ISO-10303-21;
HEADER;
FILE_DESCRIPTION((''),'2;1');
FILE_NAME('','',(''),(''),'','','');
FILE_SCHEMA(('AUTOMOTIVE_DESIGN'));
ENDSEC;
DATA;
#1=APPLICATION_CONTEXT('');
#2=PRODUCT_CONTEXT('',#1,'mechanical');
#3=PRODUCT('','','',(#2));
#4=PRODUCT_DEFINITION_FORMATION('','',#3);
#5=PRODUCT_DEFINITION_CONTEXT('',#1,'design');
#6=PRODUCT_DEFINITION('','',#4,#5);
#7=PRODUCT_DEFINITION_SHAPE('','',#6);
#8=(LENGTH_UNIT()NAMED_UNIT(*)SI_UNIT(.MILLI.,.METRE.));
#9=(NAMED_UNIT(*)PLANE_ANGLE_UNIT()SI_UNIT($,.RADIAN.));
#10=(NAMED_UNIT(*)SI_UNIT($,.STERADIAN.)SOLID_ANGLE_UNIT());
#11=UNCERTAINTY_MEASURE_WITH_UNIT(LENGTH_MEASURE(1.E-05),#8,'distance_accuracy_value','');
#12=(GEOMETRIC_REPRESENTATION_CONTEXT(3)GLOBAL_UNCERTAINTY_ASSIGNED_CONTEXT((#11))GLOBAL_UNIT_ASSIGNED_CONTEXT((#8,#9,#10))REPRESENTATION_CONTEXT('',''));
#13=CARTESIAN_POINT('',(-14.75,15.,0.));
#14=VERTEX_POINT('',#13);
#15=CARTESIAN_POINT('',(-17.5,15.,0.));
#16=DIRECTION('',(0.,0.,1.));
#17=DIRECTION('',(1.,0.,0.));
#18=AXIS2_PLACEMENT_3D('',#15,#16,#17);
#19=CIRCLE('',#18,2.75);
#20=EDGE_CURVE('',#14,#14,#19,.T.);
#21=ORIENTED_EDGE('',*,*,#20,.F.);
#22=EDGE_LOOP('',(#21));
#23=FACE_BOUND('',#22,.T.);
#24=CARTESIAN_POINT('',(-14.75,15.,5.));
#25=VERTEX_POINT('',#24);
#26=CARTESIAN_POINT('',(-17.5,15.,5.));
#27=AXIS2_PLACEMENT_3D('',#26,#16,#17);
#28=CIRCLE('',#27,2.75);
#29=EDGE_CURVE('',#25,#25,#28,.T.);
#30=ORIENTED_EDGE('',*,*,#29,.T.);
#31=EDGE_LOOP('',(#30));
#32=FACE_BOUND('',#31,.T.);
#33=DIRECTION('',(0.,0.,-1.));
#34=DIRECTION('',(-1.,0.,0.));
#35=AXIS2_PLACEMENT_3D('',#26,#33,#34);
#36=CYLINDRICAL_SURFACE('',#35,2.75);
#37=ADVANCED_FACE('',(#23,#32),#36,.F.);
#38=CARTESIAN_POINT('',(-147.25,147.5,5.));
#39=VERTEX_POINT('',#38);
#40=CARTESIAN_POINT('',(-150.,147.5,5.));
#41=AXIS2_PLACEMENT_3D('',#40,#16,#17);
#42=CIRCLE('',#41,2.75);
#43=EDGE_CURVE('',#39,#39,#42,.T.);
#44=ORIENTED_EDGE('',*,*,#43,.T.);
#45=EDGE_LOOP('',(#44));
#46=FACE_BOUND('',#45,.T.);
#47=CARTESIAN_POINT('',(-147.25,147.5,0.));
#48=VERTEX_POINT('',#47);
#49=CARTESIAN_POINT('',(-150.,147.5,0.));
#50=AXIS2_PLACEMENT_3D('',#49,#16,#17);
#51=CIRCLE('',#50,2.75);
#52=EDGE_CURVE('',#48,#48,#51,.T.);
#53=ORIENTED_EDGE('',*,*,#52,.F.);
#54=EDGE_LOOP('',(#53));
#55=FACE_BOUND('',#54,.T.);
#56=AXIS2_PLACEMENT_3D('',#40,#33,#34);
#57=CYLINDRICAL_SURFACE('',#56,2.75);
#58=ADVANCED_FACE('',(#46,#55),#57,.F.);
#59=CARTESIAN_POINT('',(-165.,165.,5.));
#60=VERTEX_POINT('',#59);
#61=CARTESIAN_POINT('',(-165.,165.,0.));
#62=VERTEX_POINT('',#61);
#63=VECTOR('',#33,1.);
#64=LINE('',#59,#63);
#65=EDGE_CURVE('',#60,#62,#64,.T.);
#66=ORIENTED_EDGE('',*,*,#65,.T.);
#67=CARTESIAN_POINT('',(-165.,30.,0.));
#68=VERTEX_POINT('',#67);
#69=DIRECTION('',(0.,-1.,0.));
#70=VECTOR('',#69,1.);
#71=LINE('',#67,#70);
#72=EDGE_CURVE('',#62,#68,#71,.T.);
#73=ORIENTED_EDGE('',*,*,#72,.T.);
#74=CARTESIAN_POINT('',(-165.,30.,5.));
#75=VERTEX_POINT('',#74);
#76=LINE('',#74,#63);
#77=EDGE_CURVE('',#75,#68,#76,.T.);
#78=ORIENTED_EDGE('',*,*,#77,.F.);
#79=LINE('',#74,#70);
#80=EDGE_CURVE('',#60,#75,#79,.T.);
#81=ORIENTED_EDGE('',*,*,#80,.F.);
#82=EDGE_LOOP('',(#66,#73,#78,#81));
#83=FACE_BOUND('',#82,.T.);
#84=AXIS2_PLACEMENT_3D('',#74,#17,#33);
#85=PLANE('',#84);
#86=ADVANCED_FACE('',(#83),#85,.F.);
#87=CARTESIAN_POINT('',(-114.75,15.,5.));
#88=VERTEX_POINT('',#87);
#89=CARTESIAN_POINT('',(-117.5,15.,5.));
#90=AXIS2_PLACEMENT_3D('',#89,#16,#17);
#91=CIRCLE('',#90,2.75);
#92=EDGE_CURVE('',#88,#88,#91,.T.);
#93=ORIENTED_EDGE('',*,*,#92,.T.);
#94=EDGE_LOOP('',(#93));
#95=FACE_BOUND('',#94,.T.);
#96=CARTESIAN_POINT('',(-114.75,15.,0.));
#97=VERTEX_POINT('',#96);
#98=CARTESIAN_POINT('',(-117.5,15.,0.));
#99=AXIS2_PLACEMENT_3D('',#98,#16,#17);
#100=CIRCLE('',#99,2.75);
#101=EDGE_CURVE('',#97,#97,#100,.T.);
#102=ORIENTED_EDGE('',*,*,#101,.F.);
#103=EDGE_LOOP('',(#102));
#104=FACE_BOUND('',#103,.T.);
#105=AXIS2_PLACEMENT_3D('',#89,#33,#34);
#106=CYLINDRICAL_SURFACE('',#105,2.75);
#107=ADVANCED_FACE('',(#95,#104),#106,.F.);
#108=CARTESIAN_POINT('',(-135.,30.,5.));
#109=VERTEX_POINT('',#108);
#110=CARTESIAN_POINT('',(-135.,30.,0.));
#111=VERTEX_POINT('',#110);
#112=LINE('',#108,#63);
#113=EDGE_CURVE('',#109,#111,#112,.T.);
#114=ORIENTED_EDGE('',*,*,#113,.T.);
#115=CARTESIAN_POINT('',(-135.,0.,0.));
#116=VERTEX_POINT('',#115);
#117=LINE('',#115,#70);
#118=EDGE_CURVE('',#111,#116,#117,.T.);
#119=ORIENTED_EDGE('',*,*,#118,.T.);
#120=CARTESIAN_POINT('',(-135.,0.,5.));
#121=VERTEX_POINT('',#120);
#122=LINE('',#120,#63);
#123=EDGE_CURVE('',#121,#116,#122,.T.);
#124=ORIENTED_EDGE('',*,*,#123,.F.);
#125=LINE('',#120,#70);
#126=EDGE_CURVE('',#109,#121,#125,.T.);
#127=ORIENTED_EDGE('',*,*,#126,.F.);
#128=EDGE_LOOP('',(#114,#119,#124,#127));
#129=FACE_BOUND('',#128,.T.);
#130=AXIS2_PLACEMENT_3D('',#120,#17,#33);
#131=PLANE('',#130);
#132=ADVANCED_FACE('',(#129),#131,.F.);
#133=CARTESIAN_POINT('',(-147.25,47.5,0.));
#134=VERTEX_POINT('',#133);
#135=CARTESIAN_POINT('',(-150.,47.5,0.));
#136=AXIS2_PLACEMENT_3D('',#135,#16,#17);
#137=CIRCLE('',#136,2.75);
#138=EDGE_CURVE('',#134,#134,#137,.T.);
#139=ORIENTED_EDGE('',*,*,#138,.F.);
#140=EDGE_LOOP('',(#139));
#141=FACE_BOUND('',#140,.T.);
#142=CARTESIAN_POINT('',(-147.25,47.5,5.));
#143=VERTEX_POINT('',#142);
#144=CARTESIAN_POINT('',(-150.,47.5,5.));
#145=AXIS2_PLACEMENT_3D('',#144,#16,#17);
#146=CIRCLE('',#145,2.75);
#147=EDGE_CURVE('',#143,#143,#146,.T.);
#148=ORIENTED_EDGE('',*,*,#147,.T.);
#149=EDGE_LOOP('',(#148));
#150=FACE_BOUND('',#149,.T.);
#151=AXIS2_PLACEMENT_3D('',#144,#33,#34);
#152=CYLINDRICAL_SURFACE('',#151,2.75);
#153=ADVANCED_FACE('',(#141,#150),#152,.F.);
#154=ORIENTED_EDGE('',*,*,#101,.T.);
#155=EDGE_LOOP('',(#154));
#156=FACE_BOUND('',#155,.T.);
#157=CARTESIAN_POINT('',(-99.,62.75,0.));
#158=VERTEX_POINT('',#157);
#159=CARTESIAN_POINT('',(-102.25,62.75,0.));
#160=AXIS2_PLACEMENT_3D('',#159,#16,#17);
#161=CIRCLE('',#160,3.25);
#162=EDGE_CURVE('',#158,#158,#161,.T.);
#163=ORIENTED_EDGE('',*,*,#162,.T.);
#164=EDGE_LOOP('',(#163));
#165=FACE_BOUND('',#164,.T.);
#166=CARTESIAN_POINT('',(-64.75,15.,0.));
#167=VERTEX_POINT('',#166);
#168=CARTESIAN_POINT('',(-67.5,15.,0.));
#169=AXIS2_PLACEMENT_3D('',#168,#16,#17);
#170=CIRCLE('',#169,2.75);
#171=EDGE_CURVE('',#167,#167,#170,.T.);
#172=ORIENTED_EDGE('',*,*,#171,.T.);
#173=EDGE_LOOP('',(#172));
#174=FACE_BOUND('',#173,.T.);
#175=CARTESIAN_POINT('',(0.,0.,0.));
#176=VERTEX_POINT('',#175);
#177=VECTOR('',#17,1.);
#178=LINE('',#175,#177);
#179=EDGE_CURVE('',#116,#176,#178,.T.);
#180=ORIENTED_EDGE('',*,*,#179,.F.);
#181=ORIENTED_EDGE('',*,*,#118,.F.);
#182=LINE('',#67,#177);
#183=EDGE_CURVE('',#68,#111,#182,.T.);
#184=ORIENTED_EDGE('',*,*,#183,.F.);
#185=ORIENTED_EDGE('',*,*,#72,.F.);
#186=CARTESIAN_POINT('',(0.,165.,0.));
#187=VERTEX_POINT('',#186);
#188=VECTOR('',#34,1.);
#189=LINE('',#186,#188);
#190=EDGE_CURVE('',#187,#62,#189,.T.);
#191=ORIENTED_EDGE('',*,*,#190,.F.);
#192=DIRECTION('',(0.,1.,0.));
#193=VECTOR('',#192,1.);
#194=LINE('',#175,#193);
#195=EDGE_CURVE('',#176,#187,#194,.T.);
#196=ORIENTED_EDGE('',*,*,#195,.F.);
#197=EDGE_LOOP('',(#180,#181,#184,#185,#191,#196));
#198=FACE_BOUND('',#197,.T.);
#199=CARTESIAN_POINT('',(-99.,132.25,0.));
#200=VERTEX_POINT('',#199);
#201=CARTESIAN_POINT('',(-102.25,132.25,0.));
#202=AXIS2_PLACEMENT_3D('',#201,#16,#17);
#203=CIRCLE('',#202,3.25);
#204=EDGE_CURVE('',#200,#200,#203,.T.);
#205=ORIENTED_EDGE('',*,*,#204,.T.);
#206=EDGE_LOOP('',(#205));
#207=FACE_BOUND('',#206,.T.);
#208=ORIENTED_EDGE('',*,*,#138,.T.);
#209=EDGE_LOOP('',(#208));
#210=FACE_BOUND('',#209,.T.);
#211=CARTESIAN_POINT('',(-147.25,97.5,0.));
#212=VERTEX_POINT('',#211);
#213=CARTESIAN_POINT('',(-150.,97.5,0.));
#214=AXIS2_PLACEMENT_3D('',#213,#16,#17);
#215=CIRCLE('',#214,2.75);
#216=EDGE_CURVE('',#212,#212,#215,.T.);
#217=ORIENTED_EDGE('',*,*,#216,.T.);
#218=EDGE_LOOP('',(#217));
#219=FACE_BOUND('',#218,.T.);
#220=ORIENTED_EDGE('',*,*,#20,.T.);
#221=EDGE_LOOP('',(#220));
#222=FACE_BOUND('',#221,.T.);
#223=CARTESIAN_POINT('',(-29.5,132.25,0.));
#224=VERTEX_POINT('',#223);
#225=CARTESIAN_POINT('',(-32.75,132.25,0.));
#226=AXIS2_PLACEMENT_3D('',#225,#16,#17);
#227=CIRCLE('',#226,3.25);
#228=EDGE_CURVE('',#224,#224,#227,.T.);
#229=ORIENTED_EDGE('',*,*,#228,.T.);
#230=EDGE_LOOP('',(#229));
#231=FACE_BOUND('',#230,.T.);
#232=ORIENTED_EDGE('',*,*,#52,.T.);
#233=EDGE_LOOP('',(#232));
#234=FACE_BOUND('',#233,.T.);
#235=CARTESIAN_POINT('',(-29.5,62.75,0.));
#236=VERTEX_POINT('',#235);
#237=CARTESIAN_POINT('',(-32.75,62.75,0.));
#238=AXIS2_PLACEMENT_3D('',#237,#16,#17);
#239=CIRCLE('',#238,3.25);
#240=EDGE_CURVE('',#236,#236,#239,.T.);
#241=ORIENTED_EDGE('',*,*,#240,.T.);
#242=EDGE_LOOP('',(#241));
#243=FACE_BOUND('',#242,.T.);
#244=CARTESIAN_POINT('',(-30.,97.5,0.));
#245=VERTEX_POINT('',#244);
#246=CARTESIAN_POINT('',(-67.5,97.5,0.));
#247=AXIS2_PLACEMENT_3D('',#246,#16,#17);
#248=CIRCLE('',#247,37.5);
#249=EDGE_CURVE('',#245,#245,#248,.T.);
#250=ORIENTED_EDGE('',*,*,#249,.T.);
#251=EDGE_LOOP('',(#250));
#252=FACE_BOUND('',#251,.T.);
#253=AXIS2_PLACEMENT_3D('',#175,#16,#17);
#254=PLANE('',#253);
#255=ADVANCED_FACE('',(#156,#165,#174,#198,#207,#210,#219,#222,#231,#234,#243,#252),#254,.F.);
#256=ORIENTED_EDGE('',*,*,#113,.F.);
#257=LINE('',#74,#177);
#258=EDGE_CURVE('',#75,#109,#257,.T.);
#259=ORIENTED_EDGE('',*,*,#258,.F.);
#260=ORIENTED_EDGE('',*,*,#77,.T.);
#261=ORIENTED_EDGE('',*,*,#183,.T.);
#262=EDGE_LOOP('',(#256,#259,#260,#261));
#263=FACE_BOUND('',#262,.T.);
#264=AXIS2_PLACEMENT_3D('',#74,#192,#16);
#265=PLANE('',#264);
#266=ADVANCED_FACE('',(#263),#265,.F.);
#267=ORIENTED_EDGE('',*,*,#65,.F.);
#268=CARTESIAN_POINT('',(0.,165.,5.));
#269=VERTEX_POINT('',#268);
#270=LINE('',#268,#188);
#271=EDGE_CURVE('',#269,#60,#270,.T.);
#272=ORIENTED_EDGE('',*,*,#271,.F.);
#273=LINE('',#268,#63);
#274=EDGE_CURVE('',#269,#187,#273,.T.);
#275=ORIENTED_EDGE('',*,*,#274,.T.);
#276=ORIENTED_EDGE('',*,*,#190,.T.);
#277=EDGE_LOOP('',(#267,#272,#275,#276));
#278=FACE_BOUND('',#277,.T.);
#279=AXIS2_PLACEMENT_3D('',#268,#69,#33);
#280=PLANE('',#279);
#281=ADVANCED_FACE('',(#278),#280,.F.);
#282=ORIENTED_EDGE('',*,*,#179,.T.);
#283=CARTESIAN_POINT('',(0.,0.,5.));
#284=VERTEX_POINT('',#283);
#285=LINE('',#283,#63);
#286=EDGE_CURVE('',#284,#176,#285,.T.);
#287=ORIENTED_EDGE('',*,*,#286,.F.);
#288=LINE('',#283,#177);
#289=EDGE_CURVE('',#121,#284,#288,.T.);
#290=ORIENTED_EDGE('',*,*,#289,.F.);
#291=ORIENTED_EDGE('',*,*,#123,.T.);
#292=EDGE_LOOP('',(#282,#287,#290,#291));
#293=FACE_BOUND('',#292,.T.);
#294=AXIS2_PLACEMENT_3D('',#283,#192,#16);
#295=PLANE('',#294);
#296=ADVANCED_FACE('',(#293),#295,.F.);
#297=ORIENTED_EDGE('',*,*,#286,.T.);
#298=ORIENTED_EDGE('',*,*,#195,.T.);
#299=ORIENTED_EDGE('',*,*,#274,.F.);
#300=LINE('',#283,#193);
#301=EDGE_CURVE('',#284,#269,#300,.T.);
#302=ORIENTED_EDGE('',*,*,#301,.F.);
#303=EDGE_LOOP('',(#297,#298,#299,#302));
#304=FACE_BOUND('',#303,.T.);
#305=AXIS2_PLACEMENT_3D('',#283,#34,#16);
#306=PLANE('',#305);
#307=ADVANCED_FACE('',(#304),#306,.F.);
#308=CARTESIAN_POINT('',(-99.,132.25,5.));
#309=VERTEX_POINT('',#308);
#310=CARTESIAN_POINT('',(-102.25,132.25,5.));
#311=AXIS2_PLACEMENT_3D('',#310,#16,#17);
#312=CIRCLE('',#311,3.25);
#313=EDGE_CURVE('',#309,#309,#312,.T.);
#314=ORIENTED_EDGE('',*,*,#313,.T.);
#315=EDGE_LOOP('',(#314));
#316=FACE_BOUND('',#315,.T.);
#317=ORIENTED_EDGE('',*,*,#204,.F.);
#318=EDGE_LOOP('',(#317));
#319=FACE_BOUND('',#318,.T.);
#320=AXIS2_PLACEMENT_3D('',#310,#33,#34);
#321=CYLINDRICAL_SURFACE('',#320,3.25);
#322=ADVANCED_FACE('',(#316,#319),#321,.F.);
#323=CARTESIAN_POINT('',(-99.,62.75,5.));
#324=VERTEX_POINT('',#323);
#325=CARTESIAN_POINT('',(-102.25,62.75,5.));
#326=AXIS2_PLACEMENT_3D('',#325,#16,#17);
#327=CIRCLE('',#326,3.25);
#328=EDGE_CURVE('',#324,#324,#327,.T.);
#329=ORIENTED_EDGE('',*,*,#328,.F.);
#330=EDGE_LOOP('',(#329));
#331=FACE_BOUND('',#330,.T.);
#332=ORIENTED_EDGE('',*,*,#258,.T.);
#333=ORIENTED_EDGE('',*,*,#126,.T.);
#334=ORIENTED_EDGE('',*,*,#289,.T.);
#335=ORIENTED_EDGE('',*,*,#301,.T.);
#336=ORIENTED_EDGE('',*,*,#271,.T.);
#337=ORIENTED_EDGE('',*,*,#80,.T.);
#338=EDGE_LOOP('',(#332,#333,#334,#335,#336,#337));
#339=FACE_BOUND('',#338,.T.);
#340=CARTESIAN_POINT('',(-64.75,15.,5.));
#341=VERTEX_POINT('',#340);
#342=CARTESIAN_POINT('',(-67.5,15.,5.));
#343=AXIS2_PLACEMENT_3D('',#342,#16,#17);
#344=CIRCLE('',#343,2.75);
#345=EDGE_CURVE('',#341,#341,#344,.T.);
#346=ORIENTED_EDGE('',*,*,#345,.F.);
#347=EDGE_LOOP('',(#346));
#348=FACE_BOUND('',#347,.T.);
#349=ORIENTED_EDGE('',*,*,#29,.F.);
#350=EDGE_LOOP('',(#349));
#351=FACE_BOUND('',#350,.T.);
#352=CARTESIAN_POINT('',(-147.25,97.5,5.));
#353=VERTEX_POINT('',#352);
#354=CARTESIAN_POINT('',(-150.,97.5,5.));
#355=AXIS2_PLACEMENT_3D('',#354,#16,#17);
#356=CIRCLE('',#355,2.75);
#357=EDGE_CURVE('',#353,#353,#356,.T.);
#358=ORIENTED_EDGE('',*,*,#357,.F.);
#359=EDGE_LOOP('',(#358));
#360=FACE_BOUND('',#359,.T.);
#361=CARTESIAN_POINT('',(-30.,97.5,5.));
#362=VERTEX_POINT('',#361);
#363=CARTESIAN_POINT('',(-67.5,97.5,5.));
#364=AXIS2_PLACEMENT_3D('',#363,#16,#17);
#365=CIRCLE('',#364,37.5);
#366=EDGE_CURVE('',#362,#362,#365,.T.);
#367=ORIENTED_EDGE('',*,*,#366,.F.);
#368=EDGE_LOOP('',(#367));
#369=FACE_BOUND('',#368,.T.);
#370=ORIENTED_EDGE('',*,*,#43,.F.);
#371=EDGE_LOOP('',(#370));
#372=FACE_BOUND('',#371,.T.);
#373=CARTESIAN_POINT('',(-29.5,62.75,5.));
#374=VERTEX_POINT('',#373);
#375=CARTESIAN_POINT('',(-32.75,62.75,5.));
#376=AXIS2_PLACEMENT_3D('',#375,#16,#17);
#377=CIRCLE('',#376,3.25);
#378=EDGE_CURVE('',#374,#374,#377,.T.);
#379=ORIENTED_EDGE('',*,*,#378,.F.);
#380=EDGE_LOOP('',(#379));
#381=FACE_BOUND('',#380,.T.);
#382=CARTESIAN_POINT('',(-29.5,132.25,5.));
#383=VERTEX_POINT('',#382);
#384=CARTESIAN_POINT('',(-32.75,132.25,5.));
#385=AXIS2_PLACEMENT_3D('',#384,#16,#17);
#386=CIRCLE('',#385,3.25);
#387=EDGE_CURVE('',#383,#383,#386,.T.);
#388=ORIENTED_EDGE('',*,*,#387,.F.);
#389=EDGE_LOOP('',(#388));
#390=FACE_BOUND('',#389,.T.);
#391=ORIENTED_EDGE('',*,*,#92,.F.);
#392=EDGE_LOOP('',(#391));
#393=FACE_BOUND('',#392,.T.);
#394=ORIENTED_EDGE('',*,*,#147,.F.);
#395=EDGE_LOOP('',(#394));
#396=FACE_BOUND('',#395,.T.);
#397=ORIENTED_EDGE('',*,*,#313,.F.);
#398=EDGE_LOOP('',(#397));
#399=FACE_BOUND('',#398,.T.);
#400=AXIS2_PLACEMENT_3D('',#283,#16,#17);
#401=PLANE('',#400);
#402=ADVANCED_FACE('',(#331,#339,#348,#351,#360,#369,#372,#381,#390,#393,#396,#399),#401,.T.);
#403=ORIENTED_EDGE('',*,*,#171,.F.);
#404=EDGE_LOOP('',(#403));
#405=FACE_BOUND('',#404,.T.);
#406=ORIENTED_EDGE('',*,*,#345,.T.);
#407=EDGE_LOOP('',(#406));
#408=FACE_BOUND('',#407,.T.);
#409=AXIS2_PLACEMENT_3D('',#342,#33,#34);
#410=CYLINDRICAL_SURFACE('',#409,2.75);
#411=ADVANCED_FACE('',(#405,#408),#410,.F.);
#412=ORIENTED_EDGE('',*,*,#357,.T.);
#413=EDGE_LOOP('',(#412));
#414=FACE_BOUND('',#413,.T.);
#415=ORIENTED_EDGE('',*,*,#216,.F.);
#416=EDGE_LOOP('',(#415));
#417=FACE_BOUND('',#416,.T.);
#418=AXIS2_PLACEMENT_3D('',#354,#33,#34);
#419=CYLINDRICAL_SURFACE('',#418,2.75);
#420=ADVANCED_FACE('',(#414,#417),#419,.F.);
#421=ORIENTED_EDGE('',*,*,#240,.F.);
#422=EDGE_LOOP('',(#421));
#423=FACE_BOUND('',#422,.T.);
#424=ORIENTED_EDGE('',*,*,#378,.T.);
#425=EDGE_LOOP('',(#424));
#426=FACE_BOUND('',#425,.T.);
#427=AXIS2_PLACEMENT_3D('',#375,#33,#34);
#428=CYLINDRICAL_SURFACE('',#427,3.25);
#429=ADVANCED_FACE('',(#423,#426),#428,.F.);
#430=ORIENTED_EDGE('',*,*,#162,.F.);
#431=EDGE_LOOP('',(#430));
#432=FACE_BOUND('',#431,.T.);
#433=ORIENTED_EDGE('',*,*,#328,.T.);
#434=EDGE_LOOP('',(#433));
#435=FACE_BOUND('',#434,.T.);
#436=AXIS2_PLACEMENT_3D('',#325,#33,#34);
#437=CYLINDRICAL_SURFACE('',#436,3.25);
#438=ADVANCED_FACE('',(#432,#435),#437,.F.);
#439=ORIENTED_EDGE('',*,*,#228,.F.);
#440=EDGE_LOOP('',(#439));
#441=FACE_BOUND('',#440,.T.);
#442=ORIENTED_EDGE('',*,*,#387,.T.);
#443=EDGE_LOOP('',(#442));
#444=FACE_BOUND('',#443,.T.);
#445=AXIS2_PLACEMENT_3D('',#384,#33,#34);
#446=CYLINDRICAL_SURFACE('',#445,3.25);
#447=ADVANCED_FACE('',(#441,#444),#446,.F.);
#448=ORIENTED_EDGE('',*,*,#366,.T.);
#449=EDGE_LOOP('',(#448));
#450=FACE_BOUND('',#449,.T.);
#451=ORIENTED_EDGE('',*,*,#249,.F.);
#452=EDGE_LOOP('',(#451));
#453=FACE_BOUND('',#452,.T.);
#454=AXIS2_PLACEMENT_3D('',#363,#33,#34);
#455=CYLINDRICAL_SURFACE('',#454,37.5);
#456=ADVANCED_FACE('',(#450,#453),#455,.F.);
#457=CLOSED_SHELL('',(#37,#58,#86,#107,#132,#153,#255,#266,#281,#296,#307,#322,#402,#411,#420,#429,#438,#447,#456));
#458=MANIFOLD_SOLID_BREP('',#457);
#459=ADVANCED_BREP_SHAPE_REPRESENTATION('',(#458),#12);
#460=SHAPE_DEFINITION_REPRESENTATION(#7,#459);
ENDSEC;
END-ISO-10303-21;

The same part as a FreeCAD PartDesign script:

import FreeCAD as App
import Part
import Sketcher


def add_polygon(sketch, points):
    """Adds a closed chain of lines whose ends are joined by coincident constraints."""
    first, n = sketch.GeometryCount, len(points)
    for a, b in zip(points, points[1:] + points[:1]):
        sketch.addGeometry(Part.LineSegment(App.Vector(*a, 0), App.Vector(*b, 0)), False)
    for i in range(n):
        sketch.addConstraint(Sketcher.Constraint("Coincident", first + i, 2, first + (i + 1) % n, 1))

doc = App.newDocument("Part")
body = doc.addObject("PartDesign::Body", "Body")

# Sketch on XY plane
sketch1 = doc.addObject("Sketcher::SketchObject", "Sketch")
body.addObject(sketch1)
sketch1.AttachmentSupport = (doc.XY_Plane, [""])
sketch1.MapMode = "FlatFace"
add_polygon(sketch1, [(-135, 0), (0, 0), (0, 165), (-165, 165), (-165, 30), (-135, 30)])  # lines 0-5
sketch1.addGeometry(Part.Circle(App.Vector(-17.5, 15, 0), App.Vector(0, 0, 1), 2.75), False)  # 6
sketch1.addGeometry(Part.Circle(App.Vector(-67.5, 15, 0), App.Vector(0, 0, 1), 2.75), False)  # 7
sketch1.addGeometry(Part.Circle(App.Vector(-32.75, 62.75, 0), App.Vector(0, 0, 1), 3.25), False)  # 8
sketch1.addGeometry(Part.Circle(App.Vector(-117.5, 15, 0), App.Vector(0, 0, 1), 2.75), False)  # 9
sketch1.addGeometry(Part.Circle(App.Vector(-102.25, 62.75, 0), App.Vector(0, 0, 1), 3.25), False)  # 10
sketch1.addGeometry(Part.Circle(App.Vector(-150, 47.5, 0), App.Vector(0, 0, 1), 2.75), False)  # 11
sketch1.addGeometry(Part.Circle(App.Vector(-67.5, 97.5, 0), App.Vector(0, 0, 1), 37.5), False)  # 12
sketch1.addGeometry(Part.Circle(App.Vector(-32.75, 132.25, 0), App.Vector(0, 0, 1), 3.25), False)  # 13
sketch1.addGeometry(Part.Circle(App.Vector(-150, 97.5, 0), App.Vector(0, 0, 1), 2.75), False)  # 14
sketch1.addGeometry(Part.Circle(App.Vector(-102.25, 132.25, 0), App.Vector(0, 0, 1), 3.25), False)  # 15
sketch1.addGeometry(Part.Circle(App.Vector(-150, 147.5, 0), App.Vector(0, 0, 1), 2.75), False)  # 16
sketch1.addConstraint(Sketcher.Constraint("Horizontal", 0))
sketch1.addConstraint(Sketcher.Constraint("Vertical", 1))
sketch1.addConstraint(Sketcher.Constraint("Horizontal", 2))
sketch1.addConstraint(Sketcher.Constraint("Vertical", 3))
sketch1.addConstraint(Sketcher.Constraint("Horizontal", 4))
sketch1.addConstraint(Sketcher.Constraint("Vertical", 5))
sketch1.addConstraint(Sketcher.Constraint("Coincident", 0, 2, -1, 1))
sketch1.addConstraint(Sketcher.Constraint("Equal", 6, 7))
sketch1.addConstraint(Sketcher.Constraint("Equal", 7, 9))
sketch1.addConstraint(Sketcher.Constraint("Equal", 8, 10))
sketch1.addConstraint(Sketcher.Constraint("Equal", 9, 11))
sketch1.addConstraint(Sketcher.Constraint("Equal", 10, 13))
sketch1.addConstraint(Sketcher.Constraint("Equal", 11, 14))
sketch1.addConstraint(Sketcher.Constraint("Equal", 13, 15))
sketch1.addConstraint(Sketcher.Constraint("Equal", 14, 16))
sketch1.addConstraint(Sketcher.Constraint("Horizontal", 6, 3, 7, 3))
sketch1.addConstraint(Sketcher.Constraint("Horizontal", 7, 3, 9, 3))
sketch1.addConstraint(Sketcher.Constraint("Horizontal", 8, 3, 10, 3))
sketch1.addConstraint(Sketcher.Constraint("Horizontal", 12, 3, 14, 3))
sketch1.addConstraint(Sketcher.Constraint("Horizontal", 13, 3, 15, 3))
sketch1.addConstraint(Sketcher.Constraint("Vertical", 7, 3, 12, 3))
sketch1.addConstraint(Sketcher.Constraint("Vertical", 8, 3, 13, 3))
sketch1.addConstraint(Sketcher.Constraint("Vertical", 11, 3, 14, 3))
sketch1.addConstraint(Sketcher.Constraint("Vertical", 10, 3, 15, 3))
sketch1.addConstraint(Sketcher.Constraint("Vertical", 14, 3, 16, 3))
sketch1.addConstraint(Sketcher.Constraint("Equal", 2, 1))
sketch1.addConstraint(Sketcher.Constraint("Equal", 0, 3))
sketch1.addConstraint(Sketcher.Constraint("Diameter", 12, 75.0))
sketch1.addConstraint(Sketcher.Constraint("Diameter", 6, 5.5))
sketch1.addConstraint(Sketcher.Constraint("Diameter", 8, 6.5))
sketch1.addConstraint(Sketcher.Constraint("DistanceX", 0, 1, 0, 2, 135.0))
sketch1.addConstraint(Sketcher.Constraint("DistanceX", 2, 2, 2, 1, 165.0))
sketch1.addConstraint(Sketcher.Constraint("DistanceY", -1, 1, 6, 3, 15.0))
sketch1.addConstraint(Sketcher.Constraint("DistanceX", 11, 3, -1, 1, 150.0))
sketch1.addConstraint(Sketcher.Constraint("DistanceX", 7, 3, 6, 3, 50.0))
sketch1.addConstraint(Sketcher.Constraint("DistanceX", 9, 3, 7, 3, 50.0))
sketch1.addConstraint(Sketcher.Constraint("DistanceY", 11, 3, 14, 3, 50.0))
sketch1.addConstraint(Sketcher.Constraint("DistanceY", 14, 3, 16, 3, 50.0))
sketch1.addConstraint(Sketcher.Constraint("DistanceX", 6, 3, -1, 1, 17.5))
sketch1.addConstraint(Sketcher.Constraint("DistanceY", -1, 1, 11, 3, 47.5))
sketch1.addConstraint(Sketcher.Constraint("DistanceX", 10, 3, 8, 3, 69.5))
sketch1.addConstraint(Sketcher.Constraint("DistanceY", 8, 3, 13, 3, 69.5))
sketch1.addConstraint(Sketcher.Constraint("DistanceX", 8, 3, -1, 1, 32.75))
sketch1.addConstraint(Sketcher.Constraint("DistanceY", -1, 1, 8, 3, 62.75))
pad1 = doc.addObject("PartDesign::Pad", "Pad")
body.addObject(pad1)
pad1.Profile = sketch1
pad1.Length = 5

doc.recompute()
